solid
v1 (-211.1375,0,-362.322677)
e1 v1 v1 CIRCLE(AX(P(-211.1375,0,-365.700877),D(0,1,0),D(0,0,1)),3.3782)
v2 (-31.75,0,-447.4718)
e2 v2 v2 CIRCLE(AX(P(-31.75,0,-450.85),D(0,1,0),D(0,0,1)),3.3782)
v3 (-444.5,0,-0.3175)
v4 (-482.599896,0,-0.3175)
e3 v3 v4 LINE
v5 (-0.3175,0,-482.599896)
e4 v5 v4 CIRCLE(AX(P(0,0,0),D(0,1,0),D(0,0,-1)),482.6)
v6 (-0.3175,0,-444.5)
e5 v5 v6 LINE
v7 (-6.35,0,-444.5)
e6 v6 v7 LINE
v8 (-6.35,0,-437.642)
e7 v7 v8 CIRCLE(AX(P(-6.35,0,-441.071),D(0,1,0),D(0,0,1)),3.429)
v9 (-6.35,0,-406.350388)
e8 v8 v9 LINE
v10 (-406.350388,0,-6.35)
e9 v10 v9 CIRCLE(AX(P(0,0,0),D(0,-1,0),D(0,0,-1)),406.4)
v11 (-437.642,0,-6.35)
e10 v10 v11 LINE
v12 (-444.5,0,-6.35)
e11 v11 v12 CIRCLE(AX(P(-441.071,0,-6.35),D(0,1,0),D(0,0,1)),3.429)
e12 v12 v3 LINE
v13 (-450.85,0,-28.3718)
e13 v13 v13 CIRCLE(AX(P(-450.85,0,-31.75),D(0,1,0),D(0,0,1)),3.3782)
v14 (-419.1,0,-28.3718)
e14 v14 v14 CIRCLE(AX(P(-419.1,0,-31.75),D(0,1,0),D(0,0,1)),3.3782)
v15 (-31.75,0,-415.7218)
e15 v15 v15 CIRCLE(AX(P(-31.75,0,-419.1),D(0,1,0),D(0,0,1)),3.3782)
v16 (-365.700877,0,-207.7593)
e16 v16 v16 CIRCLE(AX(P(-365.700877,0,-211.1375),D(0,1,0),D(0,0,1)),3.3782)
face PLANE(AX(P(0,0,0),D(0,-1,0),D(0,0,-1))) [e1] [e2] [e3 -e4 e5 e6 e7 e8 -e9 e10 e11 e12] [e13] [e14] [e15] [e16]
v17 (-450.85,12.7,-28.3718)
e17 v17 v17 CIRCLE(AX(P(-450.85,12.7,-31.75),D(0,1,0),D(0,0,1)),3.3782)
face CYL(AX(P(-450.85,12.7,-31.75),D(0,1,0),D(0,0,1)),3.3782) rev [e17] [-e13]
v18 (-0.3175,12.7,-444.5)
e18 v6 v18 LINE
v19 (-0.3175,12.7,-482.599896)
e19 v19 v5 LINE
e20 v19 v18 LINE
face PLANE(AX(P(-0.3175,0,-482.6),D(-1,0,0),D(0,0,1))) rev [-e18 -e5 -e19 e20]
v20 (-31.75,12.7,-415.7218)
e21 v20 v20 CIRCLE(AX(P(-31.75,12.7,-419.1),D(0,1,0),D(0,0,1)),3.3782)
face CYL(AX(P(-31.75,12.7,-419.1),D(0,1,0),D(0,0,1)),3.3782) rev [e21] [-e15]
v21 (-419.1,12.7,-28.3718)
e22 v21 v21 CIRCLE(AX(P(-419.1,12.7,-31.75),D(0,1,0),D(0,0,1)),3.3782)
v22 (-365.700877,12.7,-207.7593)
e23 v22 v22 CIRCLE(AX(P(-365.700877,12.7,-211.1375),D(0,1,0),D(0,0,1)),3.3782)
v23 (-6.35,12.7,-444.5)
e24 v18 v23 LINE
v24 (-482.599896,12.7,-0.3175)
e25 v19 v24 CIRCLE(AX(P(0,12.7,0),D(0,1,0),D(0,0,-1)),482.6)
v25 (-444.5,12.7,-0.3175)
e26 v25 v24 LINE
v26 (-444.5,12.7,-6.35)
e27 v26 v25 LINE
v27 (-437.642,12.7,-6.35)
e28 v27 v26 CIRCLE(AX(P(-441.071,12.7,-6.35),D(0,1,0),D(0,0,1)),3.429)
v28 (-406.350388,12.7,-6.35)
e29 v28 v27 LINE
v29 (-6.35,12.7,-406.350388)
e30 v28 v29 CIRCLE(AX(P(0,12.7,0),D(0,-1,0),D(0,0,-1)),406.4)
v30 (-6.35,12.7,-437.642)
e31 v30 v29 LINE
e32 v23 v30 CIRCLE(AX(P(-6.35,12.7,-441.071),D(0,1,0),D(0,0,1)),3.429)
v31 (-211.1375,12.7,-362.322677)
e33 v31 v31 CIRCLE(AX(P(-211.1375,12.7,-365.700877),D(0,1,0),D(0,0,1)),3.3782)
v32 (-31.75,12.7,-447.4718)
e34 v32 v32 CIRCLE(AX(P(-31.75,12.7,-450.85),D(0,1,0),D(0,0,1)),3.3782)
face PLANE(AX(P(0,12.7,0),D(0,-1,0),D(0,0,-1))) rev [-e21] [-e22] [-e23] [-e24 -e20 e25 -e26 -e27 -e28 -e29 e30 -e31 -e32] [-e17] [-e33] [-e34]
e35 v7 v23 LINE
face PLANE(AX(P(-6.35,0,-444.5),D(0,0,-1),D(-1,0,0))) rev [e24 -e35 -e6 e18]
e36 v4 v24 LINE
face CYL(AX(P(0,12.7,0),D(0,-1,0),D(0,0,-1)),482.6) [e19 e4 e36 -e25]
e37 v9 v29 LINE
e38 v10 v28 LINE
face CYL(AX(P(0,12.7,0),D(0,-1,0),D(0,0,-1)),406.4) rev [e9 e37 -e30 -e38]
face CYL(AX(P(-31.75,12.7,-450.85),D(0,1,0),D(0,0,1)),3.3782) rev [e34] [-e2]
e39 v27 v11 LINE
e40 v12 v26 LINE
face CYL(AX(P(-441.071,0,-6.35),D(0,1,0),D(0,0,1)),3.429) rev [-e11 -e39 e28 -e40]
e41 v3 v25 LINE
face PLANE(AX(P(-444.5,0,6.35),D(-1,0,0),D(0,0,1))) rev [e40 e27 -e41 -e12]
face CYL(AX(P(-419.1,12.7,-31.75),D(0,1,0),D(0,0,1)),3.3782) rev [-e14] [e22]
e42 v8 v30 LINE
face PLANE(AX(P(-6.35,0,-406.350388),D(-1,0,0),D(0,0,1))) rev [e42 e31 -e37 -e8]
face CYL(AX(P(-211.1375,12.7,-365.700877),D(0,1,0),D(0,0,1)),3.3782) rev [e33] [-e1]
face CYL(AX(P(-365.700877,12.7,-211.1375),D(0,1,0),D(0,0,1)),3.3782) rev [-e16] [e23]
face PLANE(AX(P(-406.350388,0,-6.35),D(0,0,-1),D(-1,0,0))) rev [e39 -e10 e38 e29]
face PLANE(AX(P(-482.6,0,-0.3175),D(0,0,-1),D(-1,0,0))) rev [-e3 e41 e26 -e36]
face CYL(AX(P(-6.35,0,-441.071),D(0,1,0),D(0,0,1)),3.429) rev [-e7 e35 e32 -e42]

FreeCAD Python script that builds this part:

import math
import FreeCAD as App
import Part
import Sketcher
from FreeCAD import Vector
Q = App.Units.Quantity


def add_polygon(sketch, points):
    """Adds a closed chain of lines whose ends are joined by coincident constraints."""
    first, n = sketch.GeometryCount, len(points)
    for a, b in zip(points, points[1:] + points[:1]):
        sketch.addGeometry(Part.LineSegment(App.Vector(*a, 0), App.Vector(*b, 0)), False)
    for i in range(n):
        sketch.addConstraint(Sketcher.Constraint("Coincident", first + i, 2, first + (i + 1) % n, 1))

doc = App.newDocument("Part")
body = doc.addObject("PartDesign::Body", "Body")

# Sketch on XZ plane
sketch1 = body.newObject("Sketcher::SketchObject", "Sketch")
sketch1.AttachmentSupport = (doc.getObject("XZ_Plane"), [""])
sketch1.MapMode = "FlatFace"
sketch1.addGeometry([
    Part.LineSegment(Vector(-483, 0, 0), Vector(-406, 0, 0)),
    Part.ArcOfCircle(Part.Circle(Vector(0, 0, 0), Vector(0, 0, 1), 406), math.radians(180), math.radians(360)),
    Part.LineSegment(Vector(406, 0, 0), Vector(483, 0, 0)),
    Part.ArcOfCircle(Part.Circle(Vector(0, 0, 0), Vector(0, 0, 1), 483), math.radians(180), math.radians(360)),
], False)
sketch1.addConstraint([
    Sketcher.Constraint("Coincident", 0, 2, 1, 1),
    Sketcher.Constraint("Coincident", 1, 2, 2, 1),
    Sketcher.Constraint("Coincident", 2, 2, 3, 2),
    Sketcher.Constraint("Coincident", 3, 1, 0, 1),
    Sketcher.Constraint("Horizontal", 0),
    Sketcher.Constraint("Horizontal", 2),
    Sketcher.Constraint("Coincident", 1, 3, -1, 1),
    Sketcher.Constraint("Coincident", 3, 3, -1, 1),
    Sketcher.Constraint("PointOnObject", 0, 2, -1),
    Sketcher.Constraint("PointOnObject", 2, 2, -1),
    Sketcher.Constraint("Radius", 1, Q("16 in")),
    Sketcher.Constraint("Radius", 3, Q("19 in")),
])
pad1 = body.newObject("PartDesign::Pad", "Pad")
pad1.Profile = sketch1
pad1.Length = Q("0.5 in")
pad1.Reversed = True

# Sketch on XZ plane
sketch2 = body.newObject("Sketcher::SketchObject", "Sketch001")
sketch2.AttachmentSupport = (doc.getObject("XZ_Plane"), [""])
sketch2.MapMode = "FlatFace"
sketch2.AttachmentOffset = App.Placement(Vector(0, 0, -0.5 * 25.4), App.Rotation())
add_polygon(sketch2, [(-6, -444), (-6, -406), (6, -406), (6, -444)])  # lines 0-3
add_polygon(sketch2, [(406, -6), (406, 6), (444, 6), (444, -6)])  # lines 4-7
add_polygon(sketch2, [(-6, 406), (-6, 444), (6, 444), (6, 406)])  # lines 8-11
add_polygon(sketch2, [(-444, -6), (-444, 6), (-406, 6), (-406, -6)])  # lines 12-15
sketch2.addConstraint([
    Sketcher.Constraint("Vertical", 0),
    Sketcher.Constraint("Horizontal", 1),
    Sketcher.Constraint("Vertical", 2),
    Sketcher.Constraint("Horizontal", 3),
    Sketcher.Constraint("Vertical", 4),
    Sketcher.Constraint("Horizontal", 5),
    Sketcher.Constraint("Vertical", 6),
    Sketcher.Constraint("Horizontal", 7),
    Sketcher.Constraint("Vertical", 8),
    Sketcher.Constraint("Horizontal", 9),
    Sketcher.Constraint("Vertical", 10),
    Sketcher.Constraint("Horizontal", 11),
    Sketcher.Constraint("Vertical", 12),
    Sketcher.Constraint("Horizontal", 13),
    Sketcher.Constraint("Vertical", 14),
    Sketcher.Constraint("Horizontal", 15),
    Sketcher.Constraint("Symmetric", 2, 2, 8, 2, -1, 1),
    Sketcher.Constraint("Symmetric", 0, 2, 10, 2, -1, 1),
    Sketcher.Constraint("Symmetric", 6, 2, 12, 2, -1, 1),
    Sketcher.Constraint("Symmetric", 4, 2, 14, 2, -1, 1),
    Sketcher.Constraint("Horizontal", 5, 2, 12, 2),
    Sketcher.Constraint("Vertical", 3, 2, 8, 2),
    Sketcher.Constraint("Equal", 15, 0),
    Sketcher.Constraint("Equal", 11, 4),
    Sketcher.Constraint("DistanceX", 1, 1, 1, 2, Q("0.5 in")),
    Sketcher.Constraint("DistanceY", 2, 2, -1, 1, Q("17.5 in")),
    Sketcher.Constraint("DistanceX", -1, 1, 5, 2, Q("17.5 in")),
    Sketcher.Constraint("DistanceX", 5, 1, 5, 2, Q("38.149612 mm")),
])
pocket1 = body.newObject("PartDesign::Pocket", "Pocket")
pocket1.Profile = sketch2
pocket1.Type = "ThroughAll"
pocket1.Reversed = True

# Sketch on XZ plane
sketch3 = body.newObject("Sketcher::SketchObject", "Sketch002")
sketch3.AttachmentSupport = (doc.getObject("XZ_Plane"), [""])
sketch3.MapMode = "FlatFace"
sketch3.AttachmentOffset = App.Placement(Vector(0, 0, -0.5 * 25.4), App.Rotation())
sketch3.addGeometry([
    Part.Circle(Vector(-6.3, -441.1, 0), Vector(0, 0, 1), 3.4),
    Part.Circle(Vector(-441.1, -6.3, 0), Vector(0, 0, 1), 3.4),
    Part.Circle(Vector(6.3, -441.1, 0), Vector(0, 0, 1), 3.4),
    Part.Circle(Vector(441.1, -6.3, 0), Vector(0, 0, 1), 3.4),
], False)
sketch3.addConstraint([
    Sketcher.Constraint("Equal", 0, 1),
    Sketcher.Constraint("Equal", 1, 2),
    Sketcher.Constraint("Equal", 2, 3),
    Sketcher.Constraint("Symmetric", 0, 3, 2, 3, -2),
    Sketcher.Constraint("Symmetric", 1, 3, 3, 3, -2),
    Sketcher.Constraint("Diameter", 0, Q("0.27 in")),
    Sketcher.Constraint("DistanceX", 0, 3, 2, 3, Q("0.5 in")),
    Sketcher.Constraint("DistanceY", 1, 3, -1, 1, Q("0.25 in")),
    Sketcher.Constraint("DistanceX", 1, 3, 3, 3, Q("34.73 in")),
    Sketcher.Constraint("DistanceY", 0, 3, -1, 1, Q("17.365 in")),
])
pocket2 = body.newObject("PartDesign::Pocket", "Pocket001")
pocket2.Profile = sketch3
pocket2.Type = "ThroughAll"
pocket2.Reversed = True

# Sketch on XZ plane
sketch4 = body.newObject("Sketcher::SketchObject", "Sketch003")
sketch4.AttachmentSupport = (doc.getObject("XZ_Plane"), [""])
sketch4.MapMode = "FlatFace"
sketch4.AttachmentOffset = App.Placement(Vector(0, 0, -0.5 * 25.4), App.Rotation())
sketch4.addGeometry([
    Part.Circle(Vector(-365.7, -211.1, 0), Vector(0, 0, 1), 3.4),  # 0
    Part.Circle(Vector(-31.8, -419.1, 0), Vector(0, 0, 1), 3.4),  # 1
    Part.Circle(Vector(-31.8, -450.9, 0), Vector(0, 0, 1), 3.4),  # 2
    Part.Circle(Vector(-419.1, -31.8, 0), Vector(0, 0, 1), 3.4),  # 3
    Part.Circle(Vector(-450.9, -31.8, 0), Vector(0, 0, 1), 3.4),  # 4
    Part.Circle(Vector(-211.1, -365.7, 0), Vector(0, 0, 1), 3.4),  # 5
], False)
sketch4.addConstraint([
    Sketcher.Constraint("Equal", 0, 1),
    Sketcher.Constraint("Equal", 1, 2),
    Sketcher.Constraint("Equal", 2, 3),
    Sketcher.Constraint("Equal", 3, 4),
    Sketcher.Constraint("Equal", 4, 5),
    Sketcher.Constraint("Horizontal", 3, 3, 4, 3),
    Sketcher.Constraint("Vertical", 1, 3, 2, 3),
    Sketcher.Constraint("Diameter", 0, Q("0.266 in")),
    Sketcher.Constraint("DistanceY", 1, 3, -1, 1, Q("16.5 in")),
    Sketcher.Constraint("DistanceX", 3, 3, -1, 1, Q("16.5 in")),
    Sketcher.Constraint("DistanceY", 2, 3, 3, 3, Q("16.5 in")),
    Sketcher.Constraint("DistanceX", 4, 3, 1, 3, Q("16.5 in")),
    Sketcher.Constraint("DistanceX", 1, 3, -1, 1, Q("1.25 in")),
    Sketcher.Constraint("DistanceY", 2, 3, -1, 1, Q("17.75 in")),
    Sketcher.Constraint("DistanceY", 0, 3, -1, 1, Q("8.3125 in")),
    Sketcher.Constraint("DistanceX", 5, 3, -1, 1, Q("8.3125 in")),
    Sketcher.Constraint("DistanceX", 0, 3, -1, 1, Q("365.700877 mm")),
    Sketcher.Constraint("DistanceY", 5, 3, -1, 1, Q("365.700877 mm")),
])
doc.recompute()
hole = body.newObject("PartDesign::Hole", "Hole")
hole.Profile = sketch4
hole.ThreadType = "None"
hole.Diameter = Q("0.266 in")
hole.DepthType = "ThroughAll"
hole.Reversed = True

# Sketch on XZ plane
sketch5 = body.newObject("Sketcher::SketchObject", "Sketch004")
sketch5.AttachmentSupport = (doc.getObject("XZ_Plane"), [""])
sketch5.MapMode = "FlatFace"
sketch5.AttachmentOffset = App.Placement(Vector(0, 0, -0.5 * 25.4), App.Rotation())
add_polygon(sketch5, [(0, -483), (0, 0), (483, 0), (483, -483)])  # lines 0-3
sketch5.addConstraint([
    Sketcher.Constraint("Vertical", 0),
    Sketcher.Constraint("Horizontal", 1),
    Sketcher.Constraint("Vertical", 2),
    Sketcher.Constraint("Horizontal", 3),
    Sketcher.Constraint("Coincident", 0, 2, -1, 1),
    Sketcher.Constraint("Equal", 3, 0),
    Sketcher.Constraint("DistanceX", 1, 1, 1, 2, Q("19 in")),
])
pocket3 = body.newObject("PartDesign::Pocket", "Pocket002")
pocket3.Profile = sketch5
pocket3.Type = "ThroughAll"
pocket3.Reversed = True

# Sketch on XZ plane
sketch6 = body.newObject("Sketcher::SketchObject", "Sketch005")
sketch6.AttachmentSupport = (doc.getObject("XZ_Plane"), [""])
sketch6.MapMode = "FlatFace"
sketch6.AttachmentOffset = App.Placement(Vector(0, 0, -0.5 * 25.4), App.Rotation())
add_polygon(sketch6, [(-0.32, -482.6), (-0.32, -444.5), (0, -444.5), (0, -482.6)])  # lines 0-3
add_polygon(sketch6, [(-482.6, -0.32), (-482.6, 0), (-444.5, 0), (-444.5, -0.32)])  # lines 4-7
sketch6.addConstraint([
    Sketcher.Constraint("Vertical", 0),
    Sketcher.Constraint("Horizontal", 1),
    Sketcher.Constraint("Vertical", 2),
    Sketcher.Constraint("Horizontal", 3),
    Sketcher.Constraint("Vertical", 4),
    Sketcher.Constraint("Horizontal", 5),
    Sketcher.Constraint("Vertical", 6),
    Sketcher.Constraint("Horizontal", 7),
    Sketcher.Constraint("PointOnObject", 1, 2, -2),
    Sketcher.Constraint("PointOnObject", 4, 2, -1),
    Sketcher.Constraint("Equal", 7, 0),
    Sketcher.Constraint("Equal", 3, 4),
    Sketcher.Constraint("DistanceX", 5, 1, 5, 2, Q("1.5 in")),
    Sketcher.Constraint("DistanceY", 2, 2, -1, 1, Q("19 in")),
    Sketcher.Constraint("DistanceX", 4, 2, -1, 1, Q("19 in")),
    Sketcher.Constraint("DistanceX", 1, 1, 1, 2, Q("0.0125 in")),
])
pocket4 = body.newObject("PartDesign::Pocket", "Pocket003")
pocket4.Profile = sketch6
pocket4.Type = "ThroughAll"
pocket4.Reversed = True

doc.recompute()
